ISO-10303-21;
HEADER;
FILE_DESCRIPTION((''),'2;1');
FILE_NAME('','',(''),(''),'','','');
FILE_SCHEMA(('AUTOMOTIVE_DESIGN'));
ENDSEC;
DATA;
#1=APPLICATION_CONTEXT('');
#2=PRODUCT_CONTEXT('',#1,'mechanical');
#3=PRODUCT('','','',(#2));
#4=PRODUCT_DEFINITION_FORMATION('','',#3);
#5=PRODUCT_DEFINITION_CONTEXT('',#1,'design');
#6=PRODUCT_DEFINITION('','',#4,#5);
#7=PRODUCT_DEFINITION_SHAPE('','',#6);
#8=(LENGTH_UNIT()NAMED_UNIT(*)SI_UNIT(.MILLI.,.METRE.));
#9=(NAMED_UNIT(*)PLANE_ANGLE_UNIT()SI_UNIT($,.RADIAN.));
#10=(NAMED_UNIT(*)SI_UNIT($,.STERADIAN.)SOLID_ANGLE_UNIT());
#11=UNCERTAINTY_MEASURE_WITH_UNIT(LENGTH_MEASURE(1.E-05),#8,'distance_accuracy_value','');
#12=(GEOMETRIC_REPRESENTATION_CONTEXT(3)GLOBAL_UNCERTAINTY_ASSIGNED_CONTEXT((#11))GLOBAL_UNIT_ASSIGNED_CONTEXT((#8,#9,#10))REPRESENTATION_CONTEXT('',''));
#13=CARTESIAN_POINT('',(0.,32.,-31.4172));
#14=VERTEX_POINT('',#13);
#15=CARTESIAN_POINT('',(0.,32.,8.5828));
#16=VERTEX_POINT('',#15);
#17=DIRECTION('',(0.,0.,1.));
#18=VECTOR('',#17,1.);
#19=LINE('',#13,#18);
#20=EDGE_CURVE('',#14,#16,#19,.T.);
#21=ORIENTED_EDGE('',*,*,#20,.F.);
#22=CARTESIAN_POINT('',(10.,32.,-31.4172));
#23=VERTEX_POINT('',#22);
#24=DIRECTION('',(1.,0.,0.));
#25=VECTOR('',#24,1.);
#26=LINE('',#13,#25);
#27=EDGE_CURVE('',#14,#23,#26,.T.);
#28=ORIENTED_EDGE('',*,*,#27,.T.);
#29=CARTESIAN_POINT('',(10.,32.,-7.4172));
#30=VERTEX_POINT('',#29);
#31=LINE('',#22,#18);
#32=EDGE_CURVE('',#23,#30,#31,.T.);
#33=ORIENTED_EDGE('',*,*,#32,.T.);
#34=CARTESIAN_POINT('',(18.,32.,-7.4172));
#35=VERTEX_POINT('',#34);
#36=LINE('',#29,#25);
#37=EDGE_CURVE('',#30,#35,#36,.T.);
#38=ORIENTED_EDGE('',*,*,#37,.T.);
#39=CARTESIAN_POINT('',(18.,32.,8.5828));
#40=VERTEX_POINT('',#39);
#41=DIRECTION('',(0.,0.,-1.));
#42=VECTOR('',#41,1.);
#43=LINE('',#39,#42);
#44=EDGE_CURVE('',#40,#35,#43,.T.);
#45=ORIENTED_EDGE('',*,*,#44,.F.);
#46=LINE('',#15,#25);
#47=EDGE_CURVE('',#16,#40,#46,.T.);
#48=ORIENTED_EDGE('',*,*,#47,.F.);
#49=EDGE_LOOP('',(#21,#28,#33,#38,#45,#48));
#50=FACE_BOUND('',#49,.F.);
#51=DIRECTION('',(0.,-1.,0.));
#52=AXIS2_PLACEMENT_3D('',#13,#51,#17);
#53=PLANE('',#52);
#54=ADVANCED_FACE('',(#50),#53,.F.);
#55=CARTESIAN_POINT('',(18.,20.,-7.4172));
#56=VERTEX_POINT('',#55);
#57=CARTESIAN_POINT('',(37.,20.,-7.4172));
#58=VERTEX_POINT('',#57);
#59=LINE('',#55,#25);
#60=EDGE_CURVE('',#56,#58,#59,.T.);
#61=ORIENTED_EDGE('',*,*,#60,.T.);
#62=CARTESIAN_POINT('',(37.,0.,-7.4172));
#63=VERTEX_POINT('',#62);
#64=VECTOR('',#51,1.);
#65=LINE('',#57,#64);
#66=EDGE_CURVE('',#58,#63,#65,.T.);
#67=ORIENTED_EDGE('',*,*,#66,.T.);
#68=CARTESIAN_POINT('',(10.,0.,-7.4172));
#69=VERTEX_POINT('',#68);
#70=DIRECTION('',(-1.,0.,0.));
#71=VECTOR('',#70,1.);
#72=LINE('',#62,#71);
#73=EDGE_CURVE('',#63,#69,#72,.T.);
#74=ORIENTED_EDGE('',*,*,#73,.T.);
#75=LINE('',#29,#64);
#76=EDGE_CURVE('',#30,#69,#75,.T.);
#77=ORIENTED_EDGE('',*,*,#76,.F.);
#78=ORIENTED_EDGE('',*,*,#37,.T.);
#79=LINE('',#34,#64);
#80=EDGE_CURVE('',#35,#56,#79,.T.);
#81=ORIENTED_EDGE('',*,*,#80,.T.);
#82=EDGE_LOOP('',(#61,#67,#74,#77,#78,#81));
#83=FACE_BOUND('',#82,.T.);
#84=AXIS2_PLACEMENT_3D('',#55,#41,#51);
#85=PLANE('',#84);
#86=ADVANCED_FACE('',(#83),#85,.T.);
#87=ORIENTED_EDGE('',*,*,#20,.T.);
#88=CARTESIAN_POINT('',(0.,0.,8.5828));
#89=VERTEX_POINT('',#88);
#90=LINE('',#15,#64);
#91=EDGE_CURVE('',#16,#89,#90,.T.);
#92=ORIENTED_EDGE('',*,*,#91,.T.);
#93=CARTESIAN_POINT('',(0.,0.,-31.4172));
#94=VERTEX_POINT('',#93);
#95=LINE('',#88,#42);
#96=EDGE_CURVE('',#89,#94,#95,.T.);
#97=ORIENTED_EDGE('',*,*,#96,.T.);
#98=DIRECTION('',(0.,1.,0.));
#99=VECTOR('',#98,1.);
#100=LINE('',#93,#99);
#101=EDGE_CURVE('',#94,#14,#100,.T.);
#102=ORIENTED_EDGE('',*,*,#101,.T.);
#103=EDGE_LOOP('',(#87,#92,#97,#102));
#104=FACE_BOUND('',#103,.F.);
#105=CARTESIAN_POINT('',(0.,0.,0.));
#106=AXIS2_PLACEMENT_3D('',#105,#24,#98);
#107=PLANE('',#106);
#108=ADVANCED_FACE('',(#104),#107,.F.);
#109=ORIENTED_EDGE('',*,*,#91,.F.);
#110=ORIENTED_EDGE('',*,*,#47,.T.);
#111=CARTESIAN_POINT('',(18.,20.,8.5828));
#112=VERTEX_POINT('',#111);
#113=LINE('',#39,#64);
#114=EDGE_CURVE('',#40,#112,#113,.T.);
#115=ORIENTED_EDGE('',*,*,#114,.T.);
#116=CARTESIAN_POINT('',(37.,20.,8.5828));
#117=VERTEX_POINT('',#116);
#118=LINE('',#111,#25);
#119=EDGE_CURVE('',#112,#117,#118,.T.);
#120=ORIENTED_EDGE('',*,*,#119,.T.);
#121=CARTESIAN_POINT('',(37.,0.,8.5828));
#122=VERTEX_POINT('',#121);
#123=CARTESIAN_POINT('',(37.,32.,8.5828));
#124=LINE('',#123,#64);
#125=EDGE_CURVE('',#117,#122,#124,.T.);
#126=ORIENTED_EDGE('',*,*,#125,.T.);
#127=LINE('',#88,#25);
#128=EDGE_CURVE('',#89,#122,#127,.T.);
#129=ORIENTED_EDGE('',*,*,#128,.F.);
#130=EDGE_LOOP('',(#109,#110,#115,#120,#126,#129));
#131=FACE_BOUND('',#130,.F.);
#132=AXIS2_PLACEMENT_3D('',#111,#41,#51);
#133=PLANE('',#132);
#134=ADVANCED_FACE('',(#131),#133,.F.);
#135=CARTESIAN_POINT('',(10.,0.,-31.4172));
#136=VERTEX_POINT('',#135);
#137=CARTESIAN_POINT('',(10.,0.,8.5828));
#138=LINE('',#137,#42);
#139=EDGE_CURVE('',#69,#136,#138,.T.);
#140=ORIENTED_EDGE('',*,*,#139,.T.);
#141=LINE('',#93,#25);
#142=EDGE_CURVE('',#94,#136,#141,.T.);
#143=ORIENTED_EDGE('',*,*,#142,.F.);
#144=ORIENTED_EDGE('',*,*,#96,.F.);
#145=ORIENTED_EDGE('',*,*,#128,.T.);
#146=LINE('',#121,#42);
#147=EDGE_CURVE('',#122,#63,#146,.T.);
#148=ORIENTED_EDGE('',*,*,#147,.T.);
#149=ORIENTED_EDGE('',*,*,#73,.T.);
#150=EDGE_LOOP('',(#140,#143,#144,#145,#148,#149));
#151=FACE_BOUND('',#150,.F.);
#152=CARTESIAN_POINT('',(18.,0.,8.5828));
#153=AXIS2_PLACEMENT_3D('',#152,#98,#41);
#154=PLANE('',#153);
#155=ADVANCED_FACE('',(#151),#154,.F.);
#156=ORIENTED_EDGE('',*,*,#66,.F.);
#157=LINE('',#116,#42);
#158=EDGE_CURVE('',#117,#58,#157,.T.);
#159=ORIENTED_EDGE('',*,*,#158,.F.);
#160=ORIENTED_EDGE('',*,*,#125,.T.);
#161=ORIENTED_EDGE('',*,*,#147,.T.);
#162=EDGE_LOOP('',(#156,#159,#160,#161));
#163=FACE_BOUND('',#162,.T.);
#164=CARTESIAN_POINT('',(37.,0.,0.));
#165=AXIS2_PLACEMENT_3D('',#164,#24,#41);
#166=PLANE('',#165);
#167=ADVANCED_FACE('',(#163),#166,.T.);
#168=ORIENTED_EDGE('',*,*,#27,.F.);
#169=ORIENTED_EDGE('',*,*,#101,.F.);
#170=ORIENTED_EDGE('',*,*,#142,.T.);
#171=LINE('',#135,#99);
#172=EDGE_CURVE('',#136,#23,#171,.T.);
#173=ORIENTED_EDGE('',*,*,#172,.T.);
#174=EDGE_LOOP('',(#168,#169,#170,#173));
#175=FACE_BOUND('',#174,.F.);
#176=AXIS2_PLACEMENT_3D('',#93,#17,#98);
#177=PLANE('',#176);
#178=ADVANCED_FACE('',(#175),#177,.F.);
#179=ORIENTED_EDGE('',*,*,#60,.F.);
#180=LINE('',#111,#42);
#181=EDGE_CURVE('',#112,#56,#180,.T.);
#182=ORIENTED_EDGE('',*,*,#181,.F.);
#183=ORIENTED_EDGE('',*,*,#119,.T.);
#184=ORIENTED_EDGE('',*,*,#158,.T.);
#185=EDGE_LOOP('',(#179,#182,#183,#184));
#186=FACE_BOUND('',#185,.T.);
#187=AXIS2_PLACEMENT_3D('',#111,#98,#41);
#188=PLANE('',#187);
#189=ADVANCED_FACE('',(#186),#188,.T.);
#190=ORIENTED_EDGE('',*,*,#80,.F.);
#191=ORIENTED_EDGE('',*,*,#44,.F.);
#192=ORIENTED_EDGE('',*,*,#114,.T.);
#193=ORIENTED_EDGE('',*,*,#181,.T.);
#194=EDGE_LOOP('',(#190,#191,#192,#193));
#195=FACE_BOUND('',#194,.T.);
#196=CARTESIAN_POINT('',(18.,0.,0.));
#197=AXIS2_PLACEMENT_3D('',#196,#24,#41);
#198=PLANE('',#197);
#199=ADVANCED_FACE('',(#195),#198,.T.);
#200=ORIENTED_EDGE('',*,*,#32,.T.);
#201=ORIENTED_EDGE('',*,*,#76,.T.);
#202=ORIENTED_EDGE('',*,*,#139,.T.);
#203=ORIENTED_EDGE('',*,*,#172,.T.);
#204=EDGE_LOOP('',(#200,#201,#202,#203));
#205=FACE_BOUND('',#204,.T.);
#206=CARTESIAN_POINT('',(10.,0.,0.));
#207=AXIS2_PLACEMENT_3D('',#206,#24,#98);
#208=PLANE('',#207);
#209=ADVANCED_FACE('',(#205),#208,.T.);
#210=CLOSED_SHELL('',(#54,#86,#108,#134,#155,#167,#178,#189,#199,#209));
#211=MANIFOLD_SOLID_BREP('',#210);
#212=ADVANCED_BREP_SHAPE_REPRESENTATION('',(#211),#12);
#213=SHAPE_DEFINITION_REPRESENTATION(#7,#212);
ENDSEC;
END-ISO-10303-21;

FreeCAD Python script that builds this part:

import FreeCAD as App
import Part
import Sketcher
Q = App.Units.Quantity

doc = App.newDocument("Part")
params = doc.addObject("Spreadsheet::Sheet", "Params")
for row, (alias, value) in enumerate([
    ("sketch1_width", "32 mm"),
    ("sketch1_height", "40 mm"),
    ("pad1_length", "10 mm"),
    ("sketch2_height", "16 mm"),
    ("sketch2_width", "32 mm"),
    ("pad2_length", "8 mm"),
    ("sketch3_width", "20 mm"),
    ("sketch3_height", "16 mm"),
    ("pad3_length", "19 mm"),
], start=1):
    params.set(f"A{row}", alias)
    params.set(f"B{row}", "=" + value)
    params.setAlias(f"B{row}", alias)

body = doc.addObject("PartDesign::Body", "Body")

# Sketch on YZ plane
sketch1 = body.newObject("Sketcher::SketchObject", "Sketch")
sketch1.AttachmentSupport = (doc.getObject("YZ_Plane"), [""])
sketch1.MapMode = "FlatFace"
sketch1.addGeometry([
    Part.LineSegment(App.Vector(32, -31.4172, 0), App.Vector(32, 8.5828, 0)),
    Part.LineSegment(App.Vector(32, 8.5828, 0), App.Vector(0, 8.5828, 0)),
    Part.LineSegment(App.Vector(0, 8.5828, 0), App.Vector(0, -31.4172, 0)),
    Part.LineSegment(App.Vector(0, -31.4172, 0), App.Vector(32, -31.4172, 0)),
], False)
sketch1.addConstraint([
    Sketcher.Constraint("Coincident", 0, 2, 1, 1),
    Sketcher.Constraint("Coincident", 1, 2, 2, 1),
    Sketcher.Constraint("Coincident", 2, 2, 3, 1),
    Sketcher.Constraint("Coincident", 3, 2, 0, 1),
    Sketcher.Constraint("Vertical", 0),
    Sketcher.Constraint("Horizontal", 1),
    Sketcher.Constraint("Vertical", 2),
    Sketcher.Constraint("Horizontal", 3),
    Sketcher.Constraint("PointOnObject", 1, 2, -2),
    Sketcher.Constraint("DistanceX", 1, 2, 1, 1, Q("32 mm")),
    Sketcher.Constraint("DistanceY", 0, 1, 0, 2, Q("40 mm")),
    Sketcher.Constraint("DistanceY", -1, 1, 0, 2, Q("8.5828 mm")),
])
sketch1.setExpression("Constraints[9]", "Params.sketch1_width")
sketch1.setExpression("Constraints[10]", "Params.sketch1_height")
pad1 = body.newObject("PartDesign::Pad", "Pad")
pad1.Profile = sketch1
pad1.setExpression("Length", "Params.pad1_length")

# Sketch on YZ plane
sketch2 = body.newObject("Sketcher::SketchObject", "Sketch001")
sketch2.AttachmentSupport = (doc.getObject("YZ_Plane"), [""])
sketch2.MapMode = "FlatFace"
sketch2.AttachmentOffset = App.Placement(App.Vector(0, 0, 10), App.Rotation())
sketch2.addGeometry([
    Part.LineSegment(App.Vector(32, -7.4172, 0), App.Vector(32, 8.5828, 0)),
    Part.LineSegment(App.Vector(32, 8.5828, 0), App.Vector(0, 8.5828, 0)),
    Part.LineSegment(App.Vector(0, 8.5828, 0), App.Vector(0, -7.4172, 0)),
    Part.LineSegment(App.Vector(0, -7.4172, 0), App.Vector(32, -7.4172, 0)),
], False)
sketch2.addConstraint([
    Sketcher.Constraint("Coincident", 0, 2, 1, 1),
    Sketcher.Constraint("Coincident", 1, 2, 2, 1),
    Sketcher.Constraint("Coincident", 2, 2, 3, 1),
    Sketcher.Constraint("Coincident", 3, 2, 0, 1),
    Sketcher.Constraint("Vertical", 0),
    Sketcher.Constraint("Horizontal", 1),
    Sketcher.Constraint("Vertical", 2),
    Sketcher.Constraint("Horizontal", 3),
    Sketcher.Constraint("PointOnObject", 1, 2, -2),
    Sketcher.Constraint("DistanceY", 0, 1, 0, 2, Q("16 mm")),
    Sketcher.Constraint("DistanceX", 1, 2, 1, 1, Q("32 mm")),
    Sketcher.Constraint("DistanceY", -1, 1, 0, 2, Q("8.5828 mm")),
])
sketch2.setExpression("Constraints[9]", "Params.sketch2_height")
sketch2.setExpression("Constraints[10]", "Params.sketch2_width")
pad2 = body.newObject("PartDesign::Pad", "Pad001")
pad2.Profile = sketch2
pad2.setExpression("Length", "Params.pad2_length")

# Sketch on YZ plane
sketch3 = body.newObject("Sketcher::SketchObject", "Sketch002")
sketch3.AttachmentSupport = (doc.getObject("YZ_Plane"), [""])
sketch3.MapMode = "FlatFace"
sketch3.AttachmentOffset = App.Placement(App.Vector(0, 0, 18), App.Rotation())
sketch3.addGeometry([
    Part.LineSegment(App.Vector(20, -7.4172, 0), App.Vector(20, 8.5828, 0)),
    Part.LineSegment(App.Vector(20, 8.5828, 0), App.Vector(0, 8.5828, 0)),
    Part.LineSegment(App.Vector(0, 8.5828, 0), App.Vector(0, -7.4172, 0)),
    Part.LineSegment(App.Vector(0, -7.4172, 0), App.Vector(20, -7.4172, 0)),
], False)
sketch3.addConstraint([
    Sketcher.Constraint("Coincident", 0, 2, 1, 1),
    Sketcher.Constraint("Coincident", 1, 2, 2, 1),
    Sketcher.Constraint("Coincident", 2, 2, 3, 1),
    Sketcher.Constraint("Coincident", 3, 2, 0, 1),
    Sketcher.Constraint("Vertical", 0),
    Sketcher.Constraint("Horizontal", 1),
    Sketcher.Constraint("Vertical", 2),
    Sketcher.Constraint("Horizontal", 3),
    Sketcher.Constraint("PointOnObject", 1, 2, -2),
    Sketcher.Constraint("DistanceX", 1, 2, 1, 1, Q("20 mm")),
    Sketcher.Constraint("DistanceY", 0, 1, 0, 2, Q("16 mm")),
    Sketcher.Constraint("DistanceY", -1, 1, 0, 2, Q("8.5828 mm")),
])
sketch3.setExpression("Constraints[9]", "Params.sketch3_width")
sketch3.setExpression("Constraints[10]", "Params.sketch3_height")
pad3 = body.newObject("PartDesign::Pad", "Pad002")
pad3.Profile = sketch3
pad3.setExpression("Length", "Params.pad3_length")

doc.recompute()
